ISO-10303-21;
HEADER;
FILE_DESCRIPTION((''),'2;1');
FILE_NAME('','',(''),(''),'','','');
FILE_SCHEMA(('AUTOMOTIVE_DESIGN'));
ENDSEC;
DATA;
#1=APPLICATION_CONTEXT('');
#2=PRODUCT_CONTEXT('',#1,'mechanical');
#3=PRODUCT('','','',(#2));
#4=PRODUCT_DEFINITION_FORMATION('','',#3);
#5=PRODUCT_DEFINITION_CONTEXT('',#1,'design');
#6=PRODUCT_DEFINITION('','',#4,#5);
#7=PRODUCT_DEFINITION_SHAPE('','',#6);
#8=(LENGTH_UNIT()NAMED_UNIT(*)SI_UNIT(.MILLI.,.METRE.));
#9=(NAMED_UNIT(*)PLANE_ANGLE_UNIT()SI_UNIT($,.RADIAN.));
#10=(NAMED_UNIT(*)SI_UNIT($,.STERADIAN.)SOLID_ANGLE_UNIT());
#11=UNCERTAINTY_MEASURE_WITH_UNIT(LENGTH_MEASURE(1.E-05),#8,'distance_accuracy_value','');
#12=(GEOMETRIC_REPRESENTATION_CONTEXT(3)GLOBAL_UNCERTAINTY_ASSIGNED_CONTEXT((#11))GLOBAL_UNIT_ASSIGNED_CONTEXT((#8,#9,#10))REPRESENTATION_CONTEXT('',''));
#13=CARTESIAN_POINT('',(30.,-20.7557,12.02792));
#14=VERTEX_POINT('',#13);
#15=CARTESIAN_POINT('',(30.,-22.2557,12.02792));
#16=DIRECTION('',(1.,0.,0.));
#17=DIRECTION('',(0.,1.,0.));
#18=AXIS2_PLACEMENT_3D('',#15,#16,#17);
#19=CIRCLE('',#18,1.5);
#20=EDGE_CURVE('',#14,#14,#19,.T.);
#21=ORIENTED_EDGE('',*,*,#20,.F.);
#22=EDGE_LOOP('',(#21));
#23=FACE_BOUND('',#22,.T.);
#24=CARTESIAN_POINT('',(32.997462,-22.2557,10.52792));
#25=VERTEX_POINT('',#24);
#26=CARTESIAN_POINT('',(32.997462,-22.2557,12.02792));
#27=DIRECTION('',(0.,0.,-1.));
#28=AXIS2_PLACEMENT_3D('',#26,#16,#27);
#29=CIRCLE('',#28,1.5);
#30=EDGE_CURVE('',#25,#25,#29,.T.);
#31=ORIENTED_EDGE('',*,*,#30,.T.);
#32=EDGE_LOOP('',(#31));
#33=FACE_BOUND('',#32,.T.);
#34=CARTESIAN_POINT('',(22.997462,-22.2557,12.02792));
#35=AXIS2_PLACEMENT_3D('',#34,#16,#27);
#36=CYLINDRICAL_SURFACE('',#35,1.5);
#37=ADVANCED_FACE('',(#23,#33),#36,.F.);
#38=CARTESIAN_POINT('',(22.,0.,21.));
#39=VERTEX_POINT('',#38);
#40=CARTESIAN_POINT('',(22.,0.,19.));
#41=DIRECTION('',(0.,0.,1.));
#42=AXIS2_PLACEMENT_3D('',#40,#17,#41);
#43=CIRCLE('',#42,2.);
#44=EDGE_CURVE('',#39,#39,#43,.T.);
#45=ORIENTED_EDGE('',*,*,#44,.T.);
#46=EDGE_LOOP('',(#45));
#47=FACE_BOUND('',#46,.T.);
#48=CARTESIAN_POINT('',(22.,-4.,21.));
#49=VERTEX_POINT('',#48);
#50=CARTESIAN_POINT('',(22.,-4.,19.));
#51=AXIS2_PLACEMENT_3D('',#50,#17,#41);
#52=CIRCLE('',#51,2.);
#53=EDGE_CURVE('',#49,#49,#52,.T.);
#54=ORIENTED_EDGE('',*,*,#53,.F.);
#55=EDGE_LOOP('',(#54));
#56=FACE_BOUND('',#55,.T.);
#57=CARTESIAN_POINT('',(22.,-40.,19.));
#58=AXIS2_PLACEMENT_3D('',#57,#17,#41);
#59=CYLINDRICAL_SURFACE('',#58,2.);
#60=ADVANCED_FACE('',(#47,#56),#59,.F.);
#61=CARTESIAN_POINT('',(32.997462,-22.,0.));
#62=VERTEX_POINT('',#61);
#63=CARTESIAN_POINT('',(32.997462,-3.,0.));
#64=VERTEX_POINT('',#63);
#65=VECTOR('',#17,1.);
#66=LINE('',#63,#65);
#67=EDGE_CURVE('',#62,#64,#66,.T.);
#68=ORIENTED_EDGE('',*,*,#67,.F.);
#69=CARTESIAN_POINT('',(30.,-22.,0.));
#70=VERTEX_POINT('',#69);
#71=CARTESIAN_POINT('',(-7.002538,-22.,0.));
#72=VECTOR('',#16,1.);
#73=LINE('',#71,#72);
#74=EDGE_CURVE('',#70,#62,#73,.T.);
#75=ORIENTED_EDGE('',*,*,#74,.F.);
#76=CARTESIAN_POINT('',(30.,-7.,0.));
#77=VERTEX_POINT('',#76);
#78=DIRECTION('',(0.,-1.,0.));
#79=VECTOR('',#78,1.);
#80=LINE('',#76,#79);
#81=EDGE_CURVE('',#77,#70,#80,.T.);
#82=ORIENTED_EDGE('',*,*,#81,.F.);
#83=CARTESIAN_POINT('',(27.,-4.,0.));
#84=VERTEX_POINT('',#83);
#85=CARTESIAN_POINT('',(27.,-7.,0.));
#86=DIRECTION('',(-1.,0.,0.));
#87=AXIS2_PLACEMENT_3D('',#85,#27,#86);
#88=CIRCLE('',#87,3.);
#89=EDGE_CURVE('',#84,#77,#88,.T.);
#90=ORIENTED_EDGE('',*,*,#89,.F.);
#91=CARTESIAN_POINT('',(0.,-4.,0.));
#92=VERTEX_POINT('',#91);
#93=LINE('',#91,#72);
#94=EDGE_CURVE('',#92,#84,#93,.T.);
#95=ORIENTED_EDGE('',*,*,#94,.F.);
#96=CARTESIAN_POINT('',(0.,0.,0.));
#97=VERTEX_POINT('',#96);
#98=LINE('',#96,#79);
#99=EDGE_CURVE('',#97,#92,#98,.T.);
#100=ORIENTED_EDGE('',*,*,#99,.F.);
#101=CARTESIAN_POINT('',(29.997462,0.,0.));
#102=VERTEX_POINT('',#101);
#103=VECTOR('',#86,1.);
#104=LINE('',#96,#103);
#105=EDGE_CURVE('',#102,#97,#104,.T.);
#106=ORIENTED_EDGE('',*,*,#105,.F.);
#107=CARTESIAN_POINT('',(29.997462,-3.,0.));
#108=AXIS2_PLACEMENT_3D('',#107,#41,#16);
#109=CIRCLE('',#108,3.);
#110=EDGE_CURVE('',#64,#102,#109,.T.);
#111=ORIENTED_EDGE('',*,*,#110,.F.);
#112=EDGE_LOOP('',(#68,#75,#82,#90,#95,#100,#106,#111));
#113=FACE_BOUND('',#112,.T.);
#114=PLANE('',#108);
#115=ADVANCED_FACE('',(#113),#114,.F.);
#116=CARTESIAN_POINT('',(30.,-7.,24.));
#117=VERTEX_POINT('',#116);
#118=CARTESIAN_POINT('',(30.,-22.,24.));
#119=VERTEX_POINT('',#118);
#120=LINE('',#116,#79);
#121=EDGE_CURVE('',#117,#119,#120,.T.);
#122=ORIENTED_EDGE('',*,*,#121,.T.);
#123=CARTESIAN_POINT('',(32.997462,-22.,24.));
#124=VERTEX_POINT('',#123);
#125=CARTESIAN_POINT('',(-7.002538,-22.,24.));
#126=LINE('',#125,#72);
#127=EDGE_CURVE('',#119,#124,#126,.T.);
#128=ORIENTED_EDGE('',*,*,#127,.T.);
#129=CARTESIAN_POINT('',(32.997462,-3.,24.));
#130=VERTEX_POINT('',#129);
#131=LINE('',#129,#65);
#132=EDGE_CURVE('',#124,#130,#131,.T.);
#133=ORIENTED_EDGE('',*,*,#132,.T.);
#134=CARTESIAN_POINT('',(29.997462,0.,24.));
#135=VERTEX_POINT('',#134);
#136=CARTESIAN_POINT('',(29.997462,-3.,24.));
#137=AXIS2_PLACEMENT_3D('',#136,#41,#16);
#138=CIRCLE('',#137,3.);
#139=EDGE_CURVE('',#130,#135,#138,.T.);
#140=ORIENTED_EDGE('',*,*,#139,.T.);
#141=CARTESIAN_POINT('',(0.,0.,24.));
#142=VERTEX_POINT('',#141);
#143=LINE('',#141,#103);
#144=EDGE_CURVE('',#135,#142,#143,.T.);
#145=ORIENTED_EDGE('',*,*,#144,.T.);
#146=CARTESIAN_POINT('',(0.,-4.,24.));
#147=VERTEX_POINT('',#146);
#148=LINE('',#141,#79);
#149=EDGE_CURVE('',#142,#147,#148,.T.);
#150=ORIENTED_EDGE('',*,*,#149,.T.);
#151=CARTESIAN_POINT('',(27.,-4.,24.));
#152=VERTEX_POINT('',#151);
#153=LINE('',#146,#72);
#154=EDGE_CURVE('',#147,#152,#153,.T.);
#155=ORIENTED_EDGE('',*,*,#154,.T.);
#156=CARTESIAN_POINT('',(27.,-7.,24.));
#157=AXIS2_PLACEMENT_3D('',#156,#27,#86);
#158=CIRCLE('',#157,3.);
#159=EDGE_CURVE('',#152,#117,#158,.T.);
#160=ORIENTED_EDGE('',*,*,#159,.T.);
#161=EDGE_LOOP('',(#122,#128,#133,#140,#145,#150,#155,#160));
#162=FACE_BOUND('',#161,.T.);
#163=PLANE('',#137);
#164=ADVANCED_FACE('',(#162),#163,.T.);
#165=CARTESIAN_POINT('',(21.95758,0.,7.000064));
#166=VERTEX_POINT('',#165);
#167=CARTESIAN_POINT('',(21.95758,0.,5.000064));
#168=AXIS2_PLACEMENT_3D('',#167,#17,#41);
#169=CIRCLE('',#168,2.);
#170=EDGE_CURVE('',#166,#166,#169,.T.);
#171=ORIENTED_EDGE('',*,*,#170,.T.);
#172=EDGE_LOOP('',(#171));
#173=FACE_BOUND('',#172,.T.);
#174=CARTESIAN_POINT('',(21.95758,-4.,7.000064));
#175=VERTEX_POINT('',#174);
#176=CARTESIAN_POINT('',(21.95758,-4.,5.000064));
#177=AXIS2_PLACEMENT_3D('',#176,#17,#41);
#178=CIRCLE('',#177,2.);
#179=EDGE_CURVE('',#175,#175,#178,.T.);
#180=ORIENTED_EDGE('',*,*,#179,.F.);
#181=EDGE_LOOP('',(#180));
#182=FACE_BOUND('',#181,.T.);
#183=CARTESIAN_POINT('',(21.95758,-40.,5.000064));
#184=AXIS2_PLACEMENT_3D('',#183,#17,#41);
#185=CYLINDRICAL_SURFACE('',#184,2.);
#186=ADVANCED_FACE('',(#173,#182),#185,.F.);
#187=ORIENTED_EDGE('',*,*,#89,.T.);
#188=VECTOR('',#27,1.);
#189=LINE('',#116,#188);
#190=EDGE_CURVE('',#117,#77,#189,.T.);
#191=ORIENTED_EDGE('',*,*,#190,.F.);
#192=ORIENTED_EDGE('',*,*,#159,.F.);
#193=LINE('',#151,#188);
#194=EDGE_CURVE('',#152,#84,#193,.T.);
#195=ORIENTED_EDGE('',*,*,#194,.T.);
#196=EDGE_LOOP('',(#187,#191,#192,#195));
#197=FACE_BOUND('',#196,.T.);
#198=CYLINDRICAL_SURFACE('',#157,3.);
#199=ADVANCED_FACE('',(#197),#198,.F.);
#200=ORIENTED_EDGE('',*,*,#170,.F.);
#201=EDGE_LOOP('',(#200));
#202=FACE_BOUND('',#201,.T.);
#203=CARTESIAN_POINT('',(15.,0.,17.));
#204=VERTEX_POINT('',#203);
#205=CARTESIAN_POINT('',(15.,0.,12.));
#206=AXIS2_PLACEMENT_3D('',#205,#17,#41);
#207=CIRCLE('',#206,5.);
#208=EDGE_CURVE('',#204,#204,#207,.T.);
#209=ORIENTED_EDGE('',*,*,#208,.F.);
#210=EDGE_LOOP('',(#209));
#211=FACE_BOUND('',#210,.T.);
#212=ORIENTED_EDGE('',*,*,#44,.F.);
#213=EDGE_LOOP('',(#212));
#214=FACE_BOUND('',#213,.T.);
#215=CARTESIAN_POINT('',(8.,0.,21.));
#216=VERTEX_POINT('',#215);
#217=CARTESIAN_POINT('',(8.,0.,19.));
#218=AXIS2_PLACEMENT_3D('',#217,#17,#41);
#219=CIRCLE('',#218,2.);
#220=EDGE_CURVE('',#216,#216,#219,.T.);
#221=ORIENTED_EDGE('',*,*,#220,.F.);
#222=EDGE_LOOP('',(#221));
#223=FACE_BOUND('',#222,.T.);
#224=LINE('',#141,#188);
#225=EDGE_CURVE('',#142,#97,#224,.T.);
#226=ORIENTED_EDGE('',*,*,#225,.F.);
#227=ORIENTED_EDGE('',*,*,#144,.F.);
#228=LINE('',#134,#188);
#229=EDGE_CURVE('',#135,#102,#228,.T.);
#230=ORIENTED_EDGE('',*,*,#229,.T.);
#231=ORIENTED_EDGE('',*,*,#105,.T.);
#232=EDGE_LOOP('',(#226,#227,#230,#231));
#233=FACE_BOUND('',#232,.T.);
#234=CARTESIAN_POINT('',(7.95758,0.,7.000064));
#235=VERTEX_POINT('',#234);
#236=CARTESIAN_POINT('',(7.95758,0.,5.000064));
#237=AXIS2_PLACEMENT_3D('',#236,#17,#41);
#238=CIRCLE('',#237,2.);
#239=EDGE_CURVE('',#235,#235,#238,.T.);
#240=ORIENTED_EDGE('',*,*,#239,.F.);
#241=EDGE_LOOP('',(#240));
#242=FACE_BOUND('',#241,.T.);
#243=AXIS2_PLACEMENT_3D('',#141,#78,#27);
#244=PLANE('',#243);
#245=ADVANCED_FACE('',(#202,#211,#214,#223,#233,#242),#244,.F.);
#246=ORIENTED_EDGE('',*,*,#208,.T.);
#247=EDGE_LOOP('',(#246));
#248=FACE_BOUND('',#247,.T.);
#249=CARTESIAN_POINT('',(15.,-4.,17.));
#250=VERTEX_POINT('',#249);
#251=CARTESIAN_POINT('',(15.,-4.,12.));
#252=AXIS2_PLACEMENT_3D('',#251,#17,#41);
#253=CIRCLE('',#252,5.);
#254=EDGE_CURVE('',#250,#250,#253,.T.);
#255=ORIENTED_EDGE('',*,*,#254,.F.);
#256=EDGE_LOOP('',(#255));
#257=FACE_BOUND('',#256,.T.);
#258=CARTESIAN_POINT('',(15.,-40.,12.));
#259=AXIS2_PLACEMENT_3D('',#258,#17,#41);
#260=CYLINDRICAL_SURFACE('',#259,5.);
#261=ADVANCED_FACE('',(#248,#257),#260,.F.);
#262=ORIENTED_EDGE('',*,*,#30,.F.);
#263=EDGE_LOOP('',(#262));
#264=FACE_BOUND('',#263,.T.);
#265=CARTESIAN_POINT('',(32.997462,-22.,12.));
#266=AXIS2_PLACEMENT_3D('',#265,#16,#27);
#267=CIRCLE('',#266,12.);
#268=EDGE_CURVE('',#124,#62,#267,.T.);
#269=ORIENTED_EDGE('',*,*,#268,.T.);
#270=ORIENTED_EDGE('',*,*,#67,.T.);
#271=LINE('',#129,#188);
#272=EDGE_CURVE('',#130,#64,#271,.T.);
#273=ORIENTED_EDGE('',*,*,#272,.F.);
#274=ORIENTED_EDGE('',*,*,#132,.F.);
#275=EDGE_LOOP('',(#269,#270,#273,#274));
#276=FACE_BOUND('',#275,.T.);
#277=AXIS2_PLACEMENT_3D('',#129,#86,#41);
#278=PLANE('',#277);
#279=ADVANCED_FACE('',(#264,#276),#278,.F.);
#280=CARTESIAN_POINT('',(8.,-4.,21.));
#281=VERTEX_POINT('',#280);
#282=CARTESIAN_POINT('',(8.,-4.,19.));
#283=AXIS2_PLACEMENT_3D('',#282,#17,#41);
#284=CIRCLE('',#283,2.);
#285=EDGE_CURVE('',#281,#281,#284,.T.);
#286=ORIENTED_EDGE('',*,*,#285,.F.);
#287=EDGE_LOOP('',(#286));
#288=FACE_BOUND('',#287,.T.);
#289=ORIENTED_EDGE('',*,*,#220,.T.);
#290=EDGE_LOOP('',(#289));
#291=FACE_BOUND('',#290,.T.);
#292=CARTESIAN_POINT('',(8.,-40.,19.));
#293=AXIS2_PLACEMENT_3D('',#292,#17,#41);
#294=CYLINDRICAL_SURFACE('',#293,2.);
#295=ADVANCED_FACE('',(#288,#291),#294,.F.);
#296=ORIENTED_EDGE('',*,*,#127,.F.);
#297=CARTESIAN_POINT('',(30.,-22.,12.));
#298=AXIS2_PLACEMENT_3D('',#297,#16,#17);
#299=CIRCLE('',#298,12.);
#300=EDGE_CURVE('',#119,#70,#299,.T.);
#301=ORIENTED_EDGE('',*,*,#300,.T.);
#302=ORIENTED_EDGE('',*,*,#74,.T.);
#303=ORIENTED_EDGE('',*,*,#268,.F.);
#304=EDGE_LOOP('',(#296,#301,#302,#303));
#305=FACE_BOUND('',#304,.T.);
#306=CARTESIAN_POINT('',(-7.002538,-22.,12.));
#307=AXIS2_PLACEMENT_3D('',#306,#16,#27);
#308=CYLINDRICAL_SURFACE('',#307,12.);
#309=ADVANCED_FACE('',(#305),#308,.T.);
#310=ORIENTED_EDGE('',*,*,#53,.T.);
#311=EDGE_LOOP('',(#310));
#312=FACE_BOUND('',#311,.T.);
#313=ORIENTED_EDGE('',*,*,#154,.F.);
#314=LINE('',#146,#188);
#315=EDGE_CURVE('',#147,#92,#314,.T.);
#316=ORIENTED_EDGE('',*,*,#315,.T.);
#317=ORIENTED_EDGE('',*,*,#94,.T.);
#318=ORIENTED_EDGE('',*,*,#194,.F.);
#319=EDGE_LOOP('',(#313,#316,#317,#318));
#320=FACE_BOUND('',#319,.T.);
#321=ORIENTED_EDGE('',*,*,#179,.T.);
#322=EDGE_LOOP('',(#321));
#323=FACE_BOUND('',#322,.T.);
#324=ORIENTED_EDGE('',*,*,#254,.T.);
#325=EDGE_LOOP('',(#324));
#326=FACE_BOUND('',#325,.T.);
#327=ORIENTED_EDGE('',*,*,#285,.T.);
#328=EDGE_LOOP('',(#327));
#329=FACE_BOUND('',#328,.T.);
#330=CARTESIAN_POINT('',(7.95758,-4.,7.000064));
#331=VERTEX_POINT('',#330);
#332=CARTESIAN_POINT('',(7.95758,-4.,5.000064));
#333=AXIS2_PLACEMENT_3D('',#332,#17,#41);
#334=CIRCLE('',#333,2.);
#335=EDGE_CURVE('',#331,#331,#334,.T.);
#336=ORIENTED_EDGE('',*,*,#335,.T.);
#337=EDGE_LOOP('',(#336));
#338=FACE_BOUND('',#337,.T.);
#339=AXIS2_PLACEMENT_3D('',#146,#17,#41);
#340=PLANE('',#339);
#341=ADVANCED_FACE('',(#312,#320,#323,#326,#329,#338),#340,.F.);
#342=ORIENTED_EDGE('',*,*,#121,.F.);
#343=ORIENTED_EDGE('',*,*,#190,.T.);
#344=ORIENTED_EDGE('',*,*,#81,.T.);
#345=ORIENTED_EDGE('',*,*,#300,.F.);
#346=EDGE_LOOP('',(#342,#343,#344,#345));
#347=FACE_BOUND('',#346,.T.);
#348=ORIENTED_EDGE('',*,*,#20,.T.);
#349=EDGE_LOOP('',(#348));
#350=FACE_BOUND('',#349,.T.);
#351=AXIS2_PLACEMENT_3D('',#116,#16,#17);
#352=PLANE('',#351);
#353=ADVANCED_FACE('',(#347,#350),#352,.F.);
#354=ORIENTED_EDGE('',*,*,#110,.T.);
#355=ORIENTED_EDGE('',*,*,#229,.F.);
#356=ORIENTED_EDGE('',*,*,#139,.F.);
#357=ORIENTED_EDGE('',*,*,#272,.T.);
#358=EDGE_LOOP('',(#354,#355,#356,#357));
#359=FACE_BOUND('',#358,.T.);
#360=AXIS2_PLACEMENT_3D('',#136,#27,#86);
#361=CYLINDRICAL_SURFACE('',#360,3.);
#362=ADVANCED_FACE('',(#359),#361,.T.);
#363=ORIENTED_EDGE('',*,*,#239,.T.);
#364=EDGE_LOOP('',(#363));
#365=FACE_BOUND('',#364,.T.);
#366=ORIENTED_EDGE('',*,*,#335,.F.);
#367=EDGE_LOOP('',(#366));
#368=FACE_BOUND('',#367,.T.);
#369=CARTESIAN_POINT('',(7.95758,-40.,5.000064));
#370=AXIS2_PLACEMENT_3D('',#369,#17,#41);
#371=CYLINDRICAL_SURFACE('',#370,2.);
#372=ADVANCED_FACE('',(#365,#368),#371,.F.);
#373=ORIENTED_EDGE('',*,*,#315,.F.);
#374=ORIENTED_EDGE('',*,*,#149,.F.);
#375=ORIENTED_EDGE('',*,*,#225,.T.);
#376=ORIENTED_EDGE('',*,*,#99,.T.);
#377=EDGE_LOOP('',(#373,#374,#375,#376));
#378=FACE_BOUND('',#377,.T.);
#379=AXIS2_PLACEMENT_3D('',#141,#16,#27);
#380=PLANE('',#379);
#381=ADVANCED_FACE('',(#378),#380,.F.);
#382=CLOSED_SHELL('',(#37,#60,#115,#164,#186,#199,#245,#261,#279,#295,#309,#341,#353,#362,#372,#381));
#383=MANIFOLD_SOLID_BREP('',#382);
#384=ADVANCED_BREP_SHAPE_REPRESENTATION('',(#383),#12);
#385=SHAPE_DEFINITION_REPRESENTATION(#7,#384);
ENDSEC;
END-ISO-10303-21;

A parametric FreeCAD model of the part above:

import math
import FreeCAD as App
import Part
import Sketcher

V = App.Vector

doc = App.newDocument("Part")
params = doc.addObject("Spreadsheet::Sheet", "Params")
for row, (alias, value) in enumerate([
    ("sketch1_radius", "3 mm"),
    ("sketch1_width", "27 mm"),
    ("sketch1_height", "31 mm"),
    ("pad1_length", "24 mm"),
    ("sketch2_radius", "12 mm"),
    ("sketch3_radius", "12 mm"),
    ("pocket2_length", "40 mm"),
    ("sketch4_diameter", "4 mm"),
    ("sketch4_diameter2", "10 mm"),
    ("pocket3_length", "40 mm"),
    ("sketch5_diameter", "3 mm"),
    ("pocket4_length", "10 mm"),
], start=1):
    params.set(f"A{row}", alias)
    params.set(f"B{row}", "=" + value)
    params.setAlias(f"B{row}", alias)

body = doc.addObject("PartDesign::Body", "Body")

# Sketch on XY plane
sketch1 = body.newObject("Sketcher::SketchObject", "Sketch")
sketch1.AttachmentSupport = (doc.getObject("XY_Plane"), [""])
sketch1.MapMode = "FlatFace"
sketch1.addGeometry(Part.LineSegment(V(30, -7, 0), V(30, -34, 0)), False)
sketch1.addGeometry(Part.LineSegment(V(30, -34, 0), V(32.997462, -34, 0)), False)
sketch1.addGeometry(Part.LineSegment(V(32.997462, -34, 0), V(32.997462, -3, 0)), False)
sketch1.addGeometry(Part.ArcOfCircle(Part.Circle(V(29.997462, -3, 0), V(0, 0, 1), 3), math.radians(0), math.radians(90)), False)
sketch1.addGeometry(Part.LineSegment(V(29.997462, 0, 0), V(0, 0, 0)), False)
sketch1.addGeometry(Part.LineSegment(V(0, 0, 0), V(0, -4, 0)), False)
sketch1.addGeometry(Part.LineSegment(V(0, -4, 0), V(27, -4, 0)), False)
sketch1.addGeometry(Part.ArcOfCircle(Part.Circle(V(27, -7, 0), V(0, 0, 1), 3), math.radians(0), math.radians(90)), False)
sketch1.addConstraint(Sketcher.Constraint("Coincident", 0, 2, 1, 1))
sketch1.addConstraint(Sketcher.Constraint("Coincident", 1, 2, 2, 1))
sketch1.addConstraint(Sketcher.Constraint("Tangent", 2, 2, 3, 1))
sketch1.addConstraint(Sketcher.Constraint("Tangent", 3, 2, 4, 1))
sketch1.addConstraint(Sketcher.Constraint("Coincident", 4, 2, 5, 1))
sketch1.addConstraint(Sketcher.Constraint("Coincident", 5, 2, 6, 1))
sketch1.addConstraint(Sketcher.Constraint("Tangent", 6, 2, 7, 2))
sketch1.addConstraint(Sketcher.Constraint("Tangent", 7, 1, 0, 1))
sketch1.addConstraint(Sketcher.Constraint("Vertical", 0))
sketch1.addConstraint(Sketcher.Constraint("Horizontal", 1))
sketch1.addConstraint(Sketcher.Constraint("Vertical", 2))
sketch1.addConstraint(Sketcher.Constraint("Horizontal", 4))
sketch1.addConstraint(Sketcher.Constraint("Vertical", 5))
sketch1.addConstraint(Sketcher.Constraint("Horizontal", 6))
sketch1.addConstraint(Sketcher.Constraint("Coincident", 4, 2, -1, 1))
sketch1.addConstraint(Sketcher.Constraint("Equal", 3, 7))
sketch1.addConstraint(Sketcher.Constraint("Equal", 6, 0))
sketch1.addConstraint(Sketcher.Constraint("Radius", 3, 3.0))
sketch1.addConstraint(Sketcher.Constraint("DistanceX", 6, 1, 6, 2, 27.0))
sketch1.addConstraint(Sketcher.Constraint("DistanceY", 2, 1, 2, 2, 31.0))
sketch1.addConstraint(Sketcher.Constraint("DistanceX", 1, 1, 1, 2, 2.997462))
sketch1.setExpression("Constraints[17]", "Params.sketch1_radius")
sketch1.setExpression("Constraints[18]", "Params.sketch1_width")
sketch1.setExpression("Constraints[19]", "Params.sketch1_height")
pad1 = body.newObject("PartDesign::Pad", "Pad")
pad1.Profile = sketch1
pad1.setExpression("Length", "Params.pad1_length")

# Sketch on YZ plane
sketch2 = body.newObject("Sketcher::SketchObject", "Sketch001")
sketch2.AttachmentSupport = (doc.getObject("YZ_Plane"), [""])
sketch2.MapMode = "FlatFace"
sketch2.AttachmentOffset = App.Placement(V(0, 0, 32.997462), App.Rotation())
sketch2.addGeometry(Part.LineSegment(V(-34, 24, 0), V(-34, 12, 0)), False)
sketch2.addGeometry(Part.ArcOfCircle(Part.Circle(V(-22, 12, 0), V(0, 0, 1), 12), math.radians(90), math.radians(180)), False)
sketch2.addGeometry(Part.LineSegment(V(-22, 24, 0), V(-34, 24, 0)), False)
sketch2.addConstraint(Sketcher.Constraint("Tangent", 0, 2, 1, 2))
sketch2.addConstraint(Sketcher.Constraint("Tangent", 1, 1, 2, 1))
sketch2.addConstraint(Sketcher.Constraint("Coincident", 2, 2, 0, 1))
sketch2.addConstraint(Sketcher.Constraint("Vertical", 0))
sketch2.addConstraint(Sketcher.Constraint("Horizontal", 2))
sketch2.addConstraint(Sketcher.Constraint("Radius", 1, 12.0))
sketch2.addConstraint(Sketcher.Constraint("DistanceX", 1, 3, -1, 1, 22.0))
sketch2.addConstraint(Sketcher.Constraint("DistanceY", -1, 1, 1, 3, 12.0))
sketch2.setExpression("Constraints[5]", "Params.sketch2_radius")
pocket1 = body.newObject("PartDesign::Pocket", "Pocket")
pocket1.Profile = sketch2
pocket1.Type = "ThroughAll"
pocket1.Midplane = True

# Sketch on YZ plane
sketch3 = body.newObject("Sketcher::SketchObject", "Sketch002")
sketch3.AttachmentSupport = (doc.getObject("YZ_Plane"), [""])
sketch3.MapMode = "FlatFace"
sketch3.AttachmentOffset = App.Placement(V(0, 0, -7.002538), App.Rotation())
sketch3.addGeometry(Part.LineSegment(V(-34, 0, 0), V(-22, 0, 0)), False)
sketch3.addGeometry(Part.ArcOfCircle(Part.Circle(V(-22, 12, 0), V(0, 0, 1), 12), math.radians(-180), math.radians(-90)), False)
sketch3.addGeometry(Part.LineSegment(V(-34, 12, 0), V(-34, 0, 0)), False)
sketch3.addConstraint(Sketcher.Constraint("Tangent", 0, 2, 1, 2))
sketch3.addConstraint(Sketcher.Constraint("Tangent", 1, 1, 2, 1))
sketch3.addConstraint(Sketcher.Constraint("Coincident", 2, 2, 0, 1))
sketch3.addConstraint(Sketcher.Constraint("Horizontal", 0))
sketch3.addConstraint(Sketcher.Constraint("Vertical", 2))
sketch3.addConstraint(Sketcher.Constraint("PointOnObject", 0, 2, -1))
sketch3.addConstraint(Sketcher.Constraint("Radius", 1, 12.0))
sketch3.addConstraint(Sketcher.Constraint("DistanceX", 1, 3, -1, 1, 22.0))
sketch3.setExpression("Constraints[6]", "Params.sketch3_radius")
pocket2 = body.newObject("PartDesign::Pocket", "Pocket001")
pocket2.Profile = sketch3
pocket2.setExpression("Length", "Params.pocket2_length")
pocket2.Reversed = True

# Sketch on XZ plane
sketch4 = body.newObject("Sketcher::SketchObject", "Sketch003")
sketch4.AttachmentSupport = (doc.getObject("XZ_Plane"), [""])
sketch4.MapMode = "FlatFace"
sketch4.addGeometry(Part.Circle(V(7.95758, 5.000064, 0), V(0, 0, 1), 2), False)
sketch4.addGeometry(Part.Circle(V(22, 19, 0), V(0, 0, 1), 2), False)
sketch4.addGeometry(Part.Circle(V(21.95758, 5.000064, 0), V(0, 0, 1), 2), False)
sketch4.addGeometry(Part.Circle(V(15, 12, 0), V(0, 0, 1), 5), False)
sketch4.addGeometry(Part.Circle(V(8, 19, 0), V(0, 0, 1), 2), False)
sketch4.addConstraint(Sketcher.Constraint("Equal", 0, 1))
sketch4.addConstraint(Sketcher.Constraint("Equal", 1, 2))
sketch4.addConstraint(Sketcher.Constraint("Equal", 2, 4))
sketch4.addConstraint(Sketcher.Constraint("Horizontal", 0, 3, 2, 3))
sketch4.addConstraint(Sketcher.Constraint("Horizontal", 1, 3, 4, 3))
sketch4.addConstraint(Sketcher.Constraint("Diameter", 0, 4.0))
sketch4.addConstraint(Sketcher.Constraint("Diameter", 3, 10.0))
sketch4.addConstraint(Sketcher.Constraint("DistanceX", -1, 1, 1, 3, 22.0))
sketch4.addConstraint(Sketcher.Constraint("DistanceY", -1, 1, 1, 3, 19.0))
sketch4.addConstraint(Sketcher.Constraint("DistanceX", -1, 1, 3, 3, 15.0))
sketch4.addConstraint(Sketcher.Constraint("DistanceY", -1, 1, 3, 3, 12.0))
sketch4.addConstraint(Sketcher.Constraint("DistanceX", -1, 1, 4, 3, 8.0))
sketch4.addConstraint(Sketcher.Constraint("DistanceX", 0, 3, 2, 3, 14.0))
sketch4.addConstraint(Sketcher.Constraint("DistanceX", -1, 1, 0, 3, 7.95758))
sketch4.addConstraint(Sketcher.Constraint("DistanceY", -1, 1, 0, 3, 5.000064))
sketch4.setExpression("Constraints[5]", "Params.sketch4_diameter")
sketch4.setExpression("Constraints[6]", "Params.sketch4_diameter2")
pocket3 = body.newObject("PartDesign::Pocket", "Pocket002")
pocket3.Profile = sketch4
pocket3.setExpression("Length", "Params.pocket3_length")
pocket3.Reversed = True

# Sketch on YZ plane
sketch5 = body.newObject("Sketcher::SketchObject", "Sketch004")
sketch5.AttachmentSupport = (doc.getObject("YZ_Plane"), [""])
sketch5.MapMode = "FlatFace"
sketch5.AttachmentOffset = App.Placement(V(0, 0, 32.997462), App.Rotation())
sketch5.addGeometry(Part.Circle(V(-22.2557, 12.02792, 0), V(0, 0, 1), 1.5), False)
sketch5.addConstraint(Sketcher.Constraint("Diameter", 0, 3.0))
sketch5.addConstraint(Sketcher.Constraint("DistanceX", 0, 3, -1, 1, 22.2557))
sketch5.addConstraint(Sketcher.Constraint("DistanceY", -1, 1, 0, 3, 12.02792))
sketch5.setExpression("Constraints[0]", "Params.sketch5_diameter")
pocket4 = body.newObject("PartDesign::Pocket", "Pocket003")
pocket4.Profile = sketch5
pocket4.setExpression("Length", "Params.pocket4_length")

doc.recompute()
